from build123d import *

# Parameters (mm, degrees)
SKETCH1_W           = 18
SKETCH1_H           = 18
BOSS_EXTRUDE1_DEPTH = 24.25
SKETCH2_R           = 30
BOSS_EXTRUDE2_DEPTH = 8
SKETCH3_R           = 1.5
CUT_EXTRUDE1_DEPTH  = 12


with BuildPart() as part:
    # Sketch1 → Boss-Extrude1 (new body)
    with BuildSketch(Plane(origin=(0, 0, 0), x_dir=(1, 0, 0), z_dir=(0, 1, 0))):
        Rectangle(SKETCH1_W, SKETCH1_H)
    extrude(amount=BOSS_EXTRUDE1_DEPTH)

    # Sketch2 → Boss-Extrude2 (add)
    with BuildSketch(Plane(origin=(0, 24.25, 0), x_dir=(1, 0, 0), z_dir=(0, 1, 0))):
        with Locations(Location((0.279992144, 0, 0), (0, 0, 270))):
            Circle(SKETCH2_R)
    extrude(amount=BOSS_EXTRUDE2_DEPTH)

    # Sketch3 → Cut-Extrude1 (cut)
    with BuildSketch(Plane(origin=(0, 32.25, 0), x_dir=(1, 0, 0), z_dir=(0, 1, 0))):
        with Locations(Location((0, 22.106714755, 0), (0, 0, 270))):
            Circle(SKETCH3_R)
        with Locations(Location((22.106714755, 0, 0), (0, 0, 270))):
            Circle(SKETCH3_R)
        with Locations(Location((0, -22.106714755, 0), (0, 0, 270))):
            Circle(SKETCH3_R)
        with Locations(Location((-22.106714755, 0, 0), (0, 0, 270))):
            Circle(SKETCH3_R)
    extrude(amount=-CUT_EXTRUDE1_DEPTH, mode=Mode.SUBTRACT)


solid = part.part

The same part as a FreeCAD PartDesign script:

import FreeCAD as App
import Part
import Sketcher

V = App.Vector
Q = App.Units.Quantity

doc = App.newDocument("Part")
params = doc.addObject("Spreadsheet::Sheet", "Params")
for row, (alias, value) in enumerate([
    ("sketch1_width", "18 mm"),
    ("pad1_length", "24.25 mm"),
    ("sketch2_diameter", "60 mm"),
    ("pad2_length", "8 mm"),
    ("sketch3_diameter", "3 mm"),
    ("pocket1_length", "12 mm"),
], start=1):
    params.set(f"A{row}", alias)
    params.set(f"B{row}", "=" + value)
    params.setAlias(f"B{row}", alias)

body = doc.addObject("PartDesign::Body", "Body")

# Sketch on XZ plane
sketch1 = body.newObject("Sketcher::SketchObject", "Sketch")
sketch1.AttachmentSupport = (doc.getObject("XZ_Plane"), [""])
sketch1.MapMode = "FlatFace"
sketch1.addGeometry([
    Part.LineSegment(V(-9, -9, 0), V(-9, 9, 0)),
    Part.LineSegment(V(-9, 9, 0), V(9, 9, 0)),
    Part.LineSegment(V(9, 9, 0), V(9, -9, 0)),
    Part.LineSegment(V(9, -9, 0), V(-9, -9, 0)),
], False)
sketch1.addConstraint([
    Sketcher.Constraint("Coincident", 0, 2, 1, 1),
    Sketcher.Constraint("Coincident", 1, 2, 2, 1),
    Sketcher.Constraint("Coincident", 2, 2, 3, 1),
    Sketcher.Constraint("Coincident", 3, 2, 0, 1),
    Sketcher.Constraint("Vertical", 0),
    Sketcher.Constraint("Horizontal", 1),
    Sketcher.Constraint("Vertical", 2),
    Sketcher.Constraint("Horizontal", 3),
    Sketcher.Constraint("Symmetric", 0, 2, 2, 2, -1, 1),
    Sketcher.Constraint("Equal", 3, 0),
    Sketcher.Constraint("DistanceX", 1, 1, 1, 2, Q("18 mm")),
])
sketch1.setExpression("Constraints[10]", "Params.sketch1_width")
pad1 = body.newObject("PartDesign::Pad", "Pad")
pad1.Profile = sketch1
pad1.setExpression("Length", "Params.pad1_length")
pad1.Reversed = True

# Sketch on XZ plane
sketch2 = body.newObject("Sketcher::SketchObject", "Sketch001")
sketch2.AttachmentSupport = (doc.getObject("XZ_Plane"), [""])
sketch2.MapMode = "FlatFace"
sketch2.AttachmentOffset = App.Placement(V(0, 0, -24.25), App.Rotation())
sketch2.addGeometry(Part.Circle(V(0, 0, 0), V(0, 0, 1), 30), False)
sketch2.addConstraint([
    Sketcher.Constraint("PointOnObject", 0, 3, -1),
    Sketcher.Constraint("Diameter", 0, Q("60 mm")),
    Sketcher.Constraint("DistanceX", -1, 1, 0, 3, Q("0.279992 mm")),
])
sketch2.setExpression("Constraints[1]", "Params.sketch2_diameter")
pad2 = body.newObject("PartDesign::Pad", "Pad001")
pad2.Profile = sketch2
pad2.setExpression("Length", "Params.pad2_length")
pad2.Reversed = True

# Sketch on XZ plane
sketch3 = body.newObject("Sketcher::SketchObject", "Sketch002")
sketch3.AttachmentSupport = (doc.getObject("XZ_Plane"), [""])
sketch3.MapMode = "FlatFace"
sketch3.AttachmentOffset = App.Placement(V(0, 0, -32.25), App.Rotation())
sketch3.addGeometry([
    Part.Circle(V(0, -22.1, 0), V(0, 0, 1), 1.5),
    Part.Circle(V(22.1, 0, 0), V(0, 0, 1), 1.5),
    Part.Circle(V(0, 22.1, 0), V(0, 0, 1), 1.5),
    Part.Circle(V(-22.1, 0, 0), V(0, 0, 1), 1.5),
], False)
sketch3.addConstraint([
    Sketcher.Constraint("Equal", 0, 1),
    Sketcher.Constraint("Equal", 1, 2),
    Sketcher.Constraint("Equal", 2, 3),
    Sketcher.Constraint("Symmetric", 0, 3, 2, 3, -1, 1),
    Sketcher.Constraint("Symmetric", 1, 3, 3, 3, -1, 1),
    Sketcher.Constraint("PointOnObject", 0, 3, -2),
    Sketcher.Constraint("PointOnObject", 1, 3, -1),
    Sketcher.Constraint("Diameter", 0, Q("3 mm")),
    Sketcher.Constraint("DistanceY", 0, 3, 2, 3, Q("44.21343 mm")),
    Sketcher.Constraint("DistanceX", 3, 3, 1, 3, Q("44.21343 mm")),
])
sketch3.setExpression("Constraints[7]", "Params.sketch3_diameter")
pocket1 = body.newObject("PartDesign::Pocket", "Pocket")
pocket1.Profile = sketch3
pocket1.setExpression("Length", "Params.pocket1_length")
pocket1.Reversed = True

doc.recompute()
